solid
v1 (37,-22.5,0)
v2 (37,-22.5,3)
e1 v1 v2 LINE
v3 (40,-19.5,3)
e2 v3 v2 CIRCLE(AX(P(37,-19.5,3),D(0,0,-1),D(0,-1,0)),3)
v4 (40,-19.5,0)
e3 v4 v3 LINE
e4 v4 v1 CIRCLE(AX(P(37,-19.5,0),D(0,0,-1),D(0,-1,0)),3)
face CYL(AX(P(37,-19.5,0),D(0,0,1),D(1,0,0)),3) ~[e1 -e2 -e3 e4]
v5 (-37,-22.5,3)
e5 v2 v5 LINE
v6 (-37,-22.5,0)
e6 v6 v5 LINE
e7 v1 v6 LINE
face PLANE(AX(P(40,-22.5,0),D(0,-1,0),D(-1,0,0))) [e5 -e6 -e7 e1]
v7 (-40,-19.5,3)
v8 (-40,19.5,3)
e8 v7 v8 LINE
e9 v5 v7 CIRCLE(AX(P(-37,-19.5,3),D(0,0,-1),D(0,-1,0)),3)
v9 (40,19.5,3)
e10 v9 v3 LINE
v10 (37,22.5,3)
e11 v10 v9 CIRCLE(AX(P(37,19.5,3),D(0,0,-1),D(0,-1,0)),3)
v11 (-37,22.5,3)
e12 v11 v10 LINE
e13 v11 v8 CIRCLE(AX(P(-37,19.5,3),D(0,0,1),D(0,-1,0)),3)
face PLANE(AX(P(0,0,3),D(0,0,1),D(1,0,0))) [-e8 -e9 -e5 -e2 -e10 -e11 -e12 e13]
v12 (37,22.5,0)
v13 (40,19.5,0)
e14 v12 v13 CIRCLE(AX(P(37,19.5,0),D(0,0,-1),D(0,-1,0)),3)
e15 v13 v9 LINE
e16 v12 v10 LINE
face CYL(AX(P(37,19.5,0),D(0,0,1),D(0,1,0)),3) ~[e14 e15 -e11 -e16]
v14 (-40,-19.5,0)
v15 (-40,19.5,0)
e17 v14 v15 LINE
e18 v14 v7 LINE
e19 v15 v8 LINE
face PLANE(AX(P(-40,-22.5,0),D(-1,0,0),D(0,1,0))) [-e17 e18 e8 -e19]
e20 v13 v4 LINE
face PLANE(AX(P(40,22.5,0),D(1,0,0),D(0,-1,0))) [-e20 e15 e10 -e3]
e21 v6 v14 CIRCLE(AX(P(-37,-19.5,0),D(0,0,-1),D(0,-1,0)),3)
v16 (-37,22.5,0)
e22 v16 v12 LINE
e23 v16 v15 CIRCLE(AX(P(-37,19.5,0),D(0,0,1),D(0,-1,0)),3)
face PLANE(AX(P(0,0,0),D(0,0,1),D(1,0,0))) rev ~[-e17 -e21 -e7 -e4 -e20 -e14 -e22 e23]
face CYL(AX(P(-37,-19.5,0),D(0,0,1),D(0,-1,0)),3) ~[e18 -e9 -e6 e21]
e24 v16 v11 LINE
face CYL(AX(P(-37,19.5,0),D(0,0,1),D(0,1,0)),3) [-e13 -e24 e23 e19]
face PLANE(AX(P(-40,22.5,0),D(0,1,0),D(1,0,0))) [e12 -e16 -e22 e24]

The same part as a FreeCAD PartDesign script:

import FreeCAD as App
import Part
import Sketcher
from FreeCAD import Vector
Q = App.Units.Quantity


def edges_at(feature, points):
    """Names of the edges that pass closest to the given points."""
    edges = feature.Shape.Edges
    near = lambda p: min(range(len(edges)), key=lambda i: edges[i].distToShape(Part.Vertex(*p))[0])
    return sorted({f"Edge{near(p) + 1}" for p in points})

doc = App.newDocument("Part")
body = doc.addObject("PartDesign::Body", "Body")

sketch1 = body.newObject("Sketcher::SketchObject", "Sketch")
sketch1.AttachmentSupport = (doc.getObject("XY_Plane"), [""])
sketch1.MapMode = "FlatFace"
sketch1.addGeometry([
    Part.LineSegment(Vector(40, 22, 0), Vector(-40, 22, 0)),
    Part.LineSegment(Vector(-40, 22, 0), Vector(-40, -22, 0)),
    Part.LineSegment(Vector(-40, -22, 0), Vector(40, -22, 0)),
    Part.LineSegment(Vector(40, -22, 0), Vector(40, 22, 0)),
], False)
sketch1.addConstraint([
    Sketcher.Constraint("Coincident", 0, 2, 1, 1),
    Sketcher.Constraint("Coincident", 1, 2, 2, 1),
    Sketcher.Constraint("Coincident", 2, 2, 3, 1),
    Sketcher.Constraint("Coincident", 3, 2, 0, 1),
    Sketcher.Constraint("Horizontal", 0),
    Sketcher.Constraint("Vertical", 1),
    Sketcher.Constraint("Horizontal", 2),
    Sketcher.Constraint("Vertical", 3),
    Sketcher.Constraint("Symmetric", 0, 2, 2, 2, -1, 1),
    Sketcher.Constraint("DistanceX", 0, 2, 0, 1, Q("80 mm")),
    Sketcher.Constraint("DistanceY", 1, 2, 1, 1, Q("45 mm")),
])
pad1 = body.newObject("PartDesign::Pad", "Pad")
pad1.Profile = sketch1
pad1.Length = 3
doc.recompute()

fillet = body.newObject("PartDesign::Fillet", "Fillet")
fillet.Base = (pad1, edges_at(pad1, [
    (40, 22.5, 1.5),
    (40, -22.5, 1.5),
    (-40, -22.5, 1.5),
    (-40, 22.5, 1.5),
]))
fillet.Radius = 3

doc.recompute()
